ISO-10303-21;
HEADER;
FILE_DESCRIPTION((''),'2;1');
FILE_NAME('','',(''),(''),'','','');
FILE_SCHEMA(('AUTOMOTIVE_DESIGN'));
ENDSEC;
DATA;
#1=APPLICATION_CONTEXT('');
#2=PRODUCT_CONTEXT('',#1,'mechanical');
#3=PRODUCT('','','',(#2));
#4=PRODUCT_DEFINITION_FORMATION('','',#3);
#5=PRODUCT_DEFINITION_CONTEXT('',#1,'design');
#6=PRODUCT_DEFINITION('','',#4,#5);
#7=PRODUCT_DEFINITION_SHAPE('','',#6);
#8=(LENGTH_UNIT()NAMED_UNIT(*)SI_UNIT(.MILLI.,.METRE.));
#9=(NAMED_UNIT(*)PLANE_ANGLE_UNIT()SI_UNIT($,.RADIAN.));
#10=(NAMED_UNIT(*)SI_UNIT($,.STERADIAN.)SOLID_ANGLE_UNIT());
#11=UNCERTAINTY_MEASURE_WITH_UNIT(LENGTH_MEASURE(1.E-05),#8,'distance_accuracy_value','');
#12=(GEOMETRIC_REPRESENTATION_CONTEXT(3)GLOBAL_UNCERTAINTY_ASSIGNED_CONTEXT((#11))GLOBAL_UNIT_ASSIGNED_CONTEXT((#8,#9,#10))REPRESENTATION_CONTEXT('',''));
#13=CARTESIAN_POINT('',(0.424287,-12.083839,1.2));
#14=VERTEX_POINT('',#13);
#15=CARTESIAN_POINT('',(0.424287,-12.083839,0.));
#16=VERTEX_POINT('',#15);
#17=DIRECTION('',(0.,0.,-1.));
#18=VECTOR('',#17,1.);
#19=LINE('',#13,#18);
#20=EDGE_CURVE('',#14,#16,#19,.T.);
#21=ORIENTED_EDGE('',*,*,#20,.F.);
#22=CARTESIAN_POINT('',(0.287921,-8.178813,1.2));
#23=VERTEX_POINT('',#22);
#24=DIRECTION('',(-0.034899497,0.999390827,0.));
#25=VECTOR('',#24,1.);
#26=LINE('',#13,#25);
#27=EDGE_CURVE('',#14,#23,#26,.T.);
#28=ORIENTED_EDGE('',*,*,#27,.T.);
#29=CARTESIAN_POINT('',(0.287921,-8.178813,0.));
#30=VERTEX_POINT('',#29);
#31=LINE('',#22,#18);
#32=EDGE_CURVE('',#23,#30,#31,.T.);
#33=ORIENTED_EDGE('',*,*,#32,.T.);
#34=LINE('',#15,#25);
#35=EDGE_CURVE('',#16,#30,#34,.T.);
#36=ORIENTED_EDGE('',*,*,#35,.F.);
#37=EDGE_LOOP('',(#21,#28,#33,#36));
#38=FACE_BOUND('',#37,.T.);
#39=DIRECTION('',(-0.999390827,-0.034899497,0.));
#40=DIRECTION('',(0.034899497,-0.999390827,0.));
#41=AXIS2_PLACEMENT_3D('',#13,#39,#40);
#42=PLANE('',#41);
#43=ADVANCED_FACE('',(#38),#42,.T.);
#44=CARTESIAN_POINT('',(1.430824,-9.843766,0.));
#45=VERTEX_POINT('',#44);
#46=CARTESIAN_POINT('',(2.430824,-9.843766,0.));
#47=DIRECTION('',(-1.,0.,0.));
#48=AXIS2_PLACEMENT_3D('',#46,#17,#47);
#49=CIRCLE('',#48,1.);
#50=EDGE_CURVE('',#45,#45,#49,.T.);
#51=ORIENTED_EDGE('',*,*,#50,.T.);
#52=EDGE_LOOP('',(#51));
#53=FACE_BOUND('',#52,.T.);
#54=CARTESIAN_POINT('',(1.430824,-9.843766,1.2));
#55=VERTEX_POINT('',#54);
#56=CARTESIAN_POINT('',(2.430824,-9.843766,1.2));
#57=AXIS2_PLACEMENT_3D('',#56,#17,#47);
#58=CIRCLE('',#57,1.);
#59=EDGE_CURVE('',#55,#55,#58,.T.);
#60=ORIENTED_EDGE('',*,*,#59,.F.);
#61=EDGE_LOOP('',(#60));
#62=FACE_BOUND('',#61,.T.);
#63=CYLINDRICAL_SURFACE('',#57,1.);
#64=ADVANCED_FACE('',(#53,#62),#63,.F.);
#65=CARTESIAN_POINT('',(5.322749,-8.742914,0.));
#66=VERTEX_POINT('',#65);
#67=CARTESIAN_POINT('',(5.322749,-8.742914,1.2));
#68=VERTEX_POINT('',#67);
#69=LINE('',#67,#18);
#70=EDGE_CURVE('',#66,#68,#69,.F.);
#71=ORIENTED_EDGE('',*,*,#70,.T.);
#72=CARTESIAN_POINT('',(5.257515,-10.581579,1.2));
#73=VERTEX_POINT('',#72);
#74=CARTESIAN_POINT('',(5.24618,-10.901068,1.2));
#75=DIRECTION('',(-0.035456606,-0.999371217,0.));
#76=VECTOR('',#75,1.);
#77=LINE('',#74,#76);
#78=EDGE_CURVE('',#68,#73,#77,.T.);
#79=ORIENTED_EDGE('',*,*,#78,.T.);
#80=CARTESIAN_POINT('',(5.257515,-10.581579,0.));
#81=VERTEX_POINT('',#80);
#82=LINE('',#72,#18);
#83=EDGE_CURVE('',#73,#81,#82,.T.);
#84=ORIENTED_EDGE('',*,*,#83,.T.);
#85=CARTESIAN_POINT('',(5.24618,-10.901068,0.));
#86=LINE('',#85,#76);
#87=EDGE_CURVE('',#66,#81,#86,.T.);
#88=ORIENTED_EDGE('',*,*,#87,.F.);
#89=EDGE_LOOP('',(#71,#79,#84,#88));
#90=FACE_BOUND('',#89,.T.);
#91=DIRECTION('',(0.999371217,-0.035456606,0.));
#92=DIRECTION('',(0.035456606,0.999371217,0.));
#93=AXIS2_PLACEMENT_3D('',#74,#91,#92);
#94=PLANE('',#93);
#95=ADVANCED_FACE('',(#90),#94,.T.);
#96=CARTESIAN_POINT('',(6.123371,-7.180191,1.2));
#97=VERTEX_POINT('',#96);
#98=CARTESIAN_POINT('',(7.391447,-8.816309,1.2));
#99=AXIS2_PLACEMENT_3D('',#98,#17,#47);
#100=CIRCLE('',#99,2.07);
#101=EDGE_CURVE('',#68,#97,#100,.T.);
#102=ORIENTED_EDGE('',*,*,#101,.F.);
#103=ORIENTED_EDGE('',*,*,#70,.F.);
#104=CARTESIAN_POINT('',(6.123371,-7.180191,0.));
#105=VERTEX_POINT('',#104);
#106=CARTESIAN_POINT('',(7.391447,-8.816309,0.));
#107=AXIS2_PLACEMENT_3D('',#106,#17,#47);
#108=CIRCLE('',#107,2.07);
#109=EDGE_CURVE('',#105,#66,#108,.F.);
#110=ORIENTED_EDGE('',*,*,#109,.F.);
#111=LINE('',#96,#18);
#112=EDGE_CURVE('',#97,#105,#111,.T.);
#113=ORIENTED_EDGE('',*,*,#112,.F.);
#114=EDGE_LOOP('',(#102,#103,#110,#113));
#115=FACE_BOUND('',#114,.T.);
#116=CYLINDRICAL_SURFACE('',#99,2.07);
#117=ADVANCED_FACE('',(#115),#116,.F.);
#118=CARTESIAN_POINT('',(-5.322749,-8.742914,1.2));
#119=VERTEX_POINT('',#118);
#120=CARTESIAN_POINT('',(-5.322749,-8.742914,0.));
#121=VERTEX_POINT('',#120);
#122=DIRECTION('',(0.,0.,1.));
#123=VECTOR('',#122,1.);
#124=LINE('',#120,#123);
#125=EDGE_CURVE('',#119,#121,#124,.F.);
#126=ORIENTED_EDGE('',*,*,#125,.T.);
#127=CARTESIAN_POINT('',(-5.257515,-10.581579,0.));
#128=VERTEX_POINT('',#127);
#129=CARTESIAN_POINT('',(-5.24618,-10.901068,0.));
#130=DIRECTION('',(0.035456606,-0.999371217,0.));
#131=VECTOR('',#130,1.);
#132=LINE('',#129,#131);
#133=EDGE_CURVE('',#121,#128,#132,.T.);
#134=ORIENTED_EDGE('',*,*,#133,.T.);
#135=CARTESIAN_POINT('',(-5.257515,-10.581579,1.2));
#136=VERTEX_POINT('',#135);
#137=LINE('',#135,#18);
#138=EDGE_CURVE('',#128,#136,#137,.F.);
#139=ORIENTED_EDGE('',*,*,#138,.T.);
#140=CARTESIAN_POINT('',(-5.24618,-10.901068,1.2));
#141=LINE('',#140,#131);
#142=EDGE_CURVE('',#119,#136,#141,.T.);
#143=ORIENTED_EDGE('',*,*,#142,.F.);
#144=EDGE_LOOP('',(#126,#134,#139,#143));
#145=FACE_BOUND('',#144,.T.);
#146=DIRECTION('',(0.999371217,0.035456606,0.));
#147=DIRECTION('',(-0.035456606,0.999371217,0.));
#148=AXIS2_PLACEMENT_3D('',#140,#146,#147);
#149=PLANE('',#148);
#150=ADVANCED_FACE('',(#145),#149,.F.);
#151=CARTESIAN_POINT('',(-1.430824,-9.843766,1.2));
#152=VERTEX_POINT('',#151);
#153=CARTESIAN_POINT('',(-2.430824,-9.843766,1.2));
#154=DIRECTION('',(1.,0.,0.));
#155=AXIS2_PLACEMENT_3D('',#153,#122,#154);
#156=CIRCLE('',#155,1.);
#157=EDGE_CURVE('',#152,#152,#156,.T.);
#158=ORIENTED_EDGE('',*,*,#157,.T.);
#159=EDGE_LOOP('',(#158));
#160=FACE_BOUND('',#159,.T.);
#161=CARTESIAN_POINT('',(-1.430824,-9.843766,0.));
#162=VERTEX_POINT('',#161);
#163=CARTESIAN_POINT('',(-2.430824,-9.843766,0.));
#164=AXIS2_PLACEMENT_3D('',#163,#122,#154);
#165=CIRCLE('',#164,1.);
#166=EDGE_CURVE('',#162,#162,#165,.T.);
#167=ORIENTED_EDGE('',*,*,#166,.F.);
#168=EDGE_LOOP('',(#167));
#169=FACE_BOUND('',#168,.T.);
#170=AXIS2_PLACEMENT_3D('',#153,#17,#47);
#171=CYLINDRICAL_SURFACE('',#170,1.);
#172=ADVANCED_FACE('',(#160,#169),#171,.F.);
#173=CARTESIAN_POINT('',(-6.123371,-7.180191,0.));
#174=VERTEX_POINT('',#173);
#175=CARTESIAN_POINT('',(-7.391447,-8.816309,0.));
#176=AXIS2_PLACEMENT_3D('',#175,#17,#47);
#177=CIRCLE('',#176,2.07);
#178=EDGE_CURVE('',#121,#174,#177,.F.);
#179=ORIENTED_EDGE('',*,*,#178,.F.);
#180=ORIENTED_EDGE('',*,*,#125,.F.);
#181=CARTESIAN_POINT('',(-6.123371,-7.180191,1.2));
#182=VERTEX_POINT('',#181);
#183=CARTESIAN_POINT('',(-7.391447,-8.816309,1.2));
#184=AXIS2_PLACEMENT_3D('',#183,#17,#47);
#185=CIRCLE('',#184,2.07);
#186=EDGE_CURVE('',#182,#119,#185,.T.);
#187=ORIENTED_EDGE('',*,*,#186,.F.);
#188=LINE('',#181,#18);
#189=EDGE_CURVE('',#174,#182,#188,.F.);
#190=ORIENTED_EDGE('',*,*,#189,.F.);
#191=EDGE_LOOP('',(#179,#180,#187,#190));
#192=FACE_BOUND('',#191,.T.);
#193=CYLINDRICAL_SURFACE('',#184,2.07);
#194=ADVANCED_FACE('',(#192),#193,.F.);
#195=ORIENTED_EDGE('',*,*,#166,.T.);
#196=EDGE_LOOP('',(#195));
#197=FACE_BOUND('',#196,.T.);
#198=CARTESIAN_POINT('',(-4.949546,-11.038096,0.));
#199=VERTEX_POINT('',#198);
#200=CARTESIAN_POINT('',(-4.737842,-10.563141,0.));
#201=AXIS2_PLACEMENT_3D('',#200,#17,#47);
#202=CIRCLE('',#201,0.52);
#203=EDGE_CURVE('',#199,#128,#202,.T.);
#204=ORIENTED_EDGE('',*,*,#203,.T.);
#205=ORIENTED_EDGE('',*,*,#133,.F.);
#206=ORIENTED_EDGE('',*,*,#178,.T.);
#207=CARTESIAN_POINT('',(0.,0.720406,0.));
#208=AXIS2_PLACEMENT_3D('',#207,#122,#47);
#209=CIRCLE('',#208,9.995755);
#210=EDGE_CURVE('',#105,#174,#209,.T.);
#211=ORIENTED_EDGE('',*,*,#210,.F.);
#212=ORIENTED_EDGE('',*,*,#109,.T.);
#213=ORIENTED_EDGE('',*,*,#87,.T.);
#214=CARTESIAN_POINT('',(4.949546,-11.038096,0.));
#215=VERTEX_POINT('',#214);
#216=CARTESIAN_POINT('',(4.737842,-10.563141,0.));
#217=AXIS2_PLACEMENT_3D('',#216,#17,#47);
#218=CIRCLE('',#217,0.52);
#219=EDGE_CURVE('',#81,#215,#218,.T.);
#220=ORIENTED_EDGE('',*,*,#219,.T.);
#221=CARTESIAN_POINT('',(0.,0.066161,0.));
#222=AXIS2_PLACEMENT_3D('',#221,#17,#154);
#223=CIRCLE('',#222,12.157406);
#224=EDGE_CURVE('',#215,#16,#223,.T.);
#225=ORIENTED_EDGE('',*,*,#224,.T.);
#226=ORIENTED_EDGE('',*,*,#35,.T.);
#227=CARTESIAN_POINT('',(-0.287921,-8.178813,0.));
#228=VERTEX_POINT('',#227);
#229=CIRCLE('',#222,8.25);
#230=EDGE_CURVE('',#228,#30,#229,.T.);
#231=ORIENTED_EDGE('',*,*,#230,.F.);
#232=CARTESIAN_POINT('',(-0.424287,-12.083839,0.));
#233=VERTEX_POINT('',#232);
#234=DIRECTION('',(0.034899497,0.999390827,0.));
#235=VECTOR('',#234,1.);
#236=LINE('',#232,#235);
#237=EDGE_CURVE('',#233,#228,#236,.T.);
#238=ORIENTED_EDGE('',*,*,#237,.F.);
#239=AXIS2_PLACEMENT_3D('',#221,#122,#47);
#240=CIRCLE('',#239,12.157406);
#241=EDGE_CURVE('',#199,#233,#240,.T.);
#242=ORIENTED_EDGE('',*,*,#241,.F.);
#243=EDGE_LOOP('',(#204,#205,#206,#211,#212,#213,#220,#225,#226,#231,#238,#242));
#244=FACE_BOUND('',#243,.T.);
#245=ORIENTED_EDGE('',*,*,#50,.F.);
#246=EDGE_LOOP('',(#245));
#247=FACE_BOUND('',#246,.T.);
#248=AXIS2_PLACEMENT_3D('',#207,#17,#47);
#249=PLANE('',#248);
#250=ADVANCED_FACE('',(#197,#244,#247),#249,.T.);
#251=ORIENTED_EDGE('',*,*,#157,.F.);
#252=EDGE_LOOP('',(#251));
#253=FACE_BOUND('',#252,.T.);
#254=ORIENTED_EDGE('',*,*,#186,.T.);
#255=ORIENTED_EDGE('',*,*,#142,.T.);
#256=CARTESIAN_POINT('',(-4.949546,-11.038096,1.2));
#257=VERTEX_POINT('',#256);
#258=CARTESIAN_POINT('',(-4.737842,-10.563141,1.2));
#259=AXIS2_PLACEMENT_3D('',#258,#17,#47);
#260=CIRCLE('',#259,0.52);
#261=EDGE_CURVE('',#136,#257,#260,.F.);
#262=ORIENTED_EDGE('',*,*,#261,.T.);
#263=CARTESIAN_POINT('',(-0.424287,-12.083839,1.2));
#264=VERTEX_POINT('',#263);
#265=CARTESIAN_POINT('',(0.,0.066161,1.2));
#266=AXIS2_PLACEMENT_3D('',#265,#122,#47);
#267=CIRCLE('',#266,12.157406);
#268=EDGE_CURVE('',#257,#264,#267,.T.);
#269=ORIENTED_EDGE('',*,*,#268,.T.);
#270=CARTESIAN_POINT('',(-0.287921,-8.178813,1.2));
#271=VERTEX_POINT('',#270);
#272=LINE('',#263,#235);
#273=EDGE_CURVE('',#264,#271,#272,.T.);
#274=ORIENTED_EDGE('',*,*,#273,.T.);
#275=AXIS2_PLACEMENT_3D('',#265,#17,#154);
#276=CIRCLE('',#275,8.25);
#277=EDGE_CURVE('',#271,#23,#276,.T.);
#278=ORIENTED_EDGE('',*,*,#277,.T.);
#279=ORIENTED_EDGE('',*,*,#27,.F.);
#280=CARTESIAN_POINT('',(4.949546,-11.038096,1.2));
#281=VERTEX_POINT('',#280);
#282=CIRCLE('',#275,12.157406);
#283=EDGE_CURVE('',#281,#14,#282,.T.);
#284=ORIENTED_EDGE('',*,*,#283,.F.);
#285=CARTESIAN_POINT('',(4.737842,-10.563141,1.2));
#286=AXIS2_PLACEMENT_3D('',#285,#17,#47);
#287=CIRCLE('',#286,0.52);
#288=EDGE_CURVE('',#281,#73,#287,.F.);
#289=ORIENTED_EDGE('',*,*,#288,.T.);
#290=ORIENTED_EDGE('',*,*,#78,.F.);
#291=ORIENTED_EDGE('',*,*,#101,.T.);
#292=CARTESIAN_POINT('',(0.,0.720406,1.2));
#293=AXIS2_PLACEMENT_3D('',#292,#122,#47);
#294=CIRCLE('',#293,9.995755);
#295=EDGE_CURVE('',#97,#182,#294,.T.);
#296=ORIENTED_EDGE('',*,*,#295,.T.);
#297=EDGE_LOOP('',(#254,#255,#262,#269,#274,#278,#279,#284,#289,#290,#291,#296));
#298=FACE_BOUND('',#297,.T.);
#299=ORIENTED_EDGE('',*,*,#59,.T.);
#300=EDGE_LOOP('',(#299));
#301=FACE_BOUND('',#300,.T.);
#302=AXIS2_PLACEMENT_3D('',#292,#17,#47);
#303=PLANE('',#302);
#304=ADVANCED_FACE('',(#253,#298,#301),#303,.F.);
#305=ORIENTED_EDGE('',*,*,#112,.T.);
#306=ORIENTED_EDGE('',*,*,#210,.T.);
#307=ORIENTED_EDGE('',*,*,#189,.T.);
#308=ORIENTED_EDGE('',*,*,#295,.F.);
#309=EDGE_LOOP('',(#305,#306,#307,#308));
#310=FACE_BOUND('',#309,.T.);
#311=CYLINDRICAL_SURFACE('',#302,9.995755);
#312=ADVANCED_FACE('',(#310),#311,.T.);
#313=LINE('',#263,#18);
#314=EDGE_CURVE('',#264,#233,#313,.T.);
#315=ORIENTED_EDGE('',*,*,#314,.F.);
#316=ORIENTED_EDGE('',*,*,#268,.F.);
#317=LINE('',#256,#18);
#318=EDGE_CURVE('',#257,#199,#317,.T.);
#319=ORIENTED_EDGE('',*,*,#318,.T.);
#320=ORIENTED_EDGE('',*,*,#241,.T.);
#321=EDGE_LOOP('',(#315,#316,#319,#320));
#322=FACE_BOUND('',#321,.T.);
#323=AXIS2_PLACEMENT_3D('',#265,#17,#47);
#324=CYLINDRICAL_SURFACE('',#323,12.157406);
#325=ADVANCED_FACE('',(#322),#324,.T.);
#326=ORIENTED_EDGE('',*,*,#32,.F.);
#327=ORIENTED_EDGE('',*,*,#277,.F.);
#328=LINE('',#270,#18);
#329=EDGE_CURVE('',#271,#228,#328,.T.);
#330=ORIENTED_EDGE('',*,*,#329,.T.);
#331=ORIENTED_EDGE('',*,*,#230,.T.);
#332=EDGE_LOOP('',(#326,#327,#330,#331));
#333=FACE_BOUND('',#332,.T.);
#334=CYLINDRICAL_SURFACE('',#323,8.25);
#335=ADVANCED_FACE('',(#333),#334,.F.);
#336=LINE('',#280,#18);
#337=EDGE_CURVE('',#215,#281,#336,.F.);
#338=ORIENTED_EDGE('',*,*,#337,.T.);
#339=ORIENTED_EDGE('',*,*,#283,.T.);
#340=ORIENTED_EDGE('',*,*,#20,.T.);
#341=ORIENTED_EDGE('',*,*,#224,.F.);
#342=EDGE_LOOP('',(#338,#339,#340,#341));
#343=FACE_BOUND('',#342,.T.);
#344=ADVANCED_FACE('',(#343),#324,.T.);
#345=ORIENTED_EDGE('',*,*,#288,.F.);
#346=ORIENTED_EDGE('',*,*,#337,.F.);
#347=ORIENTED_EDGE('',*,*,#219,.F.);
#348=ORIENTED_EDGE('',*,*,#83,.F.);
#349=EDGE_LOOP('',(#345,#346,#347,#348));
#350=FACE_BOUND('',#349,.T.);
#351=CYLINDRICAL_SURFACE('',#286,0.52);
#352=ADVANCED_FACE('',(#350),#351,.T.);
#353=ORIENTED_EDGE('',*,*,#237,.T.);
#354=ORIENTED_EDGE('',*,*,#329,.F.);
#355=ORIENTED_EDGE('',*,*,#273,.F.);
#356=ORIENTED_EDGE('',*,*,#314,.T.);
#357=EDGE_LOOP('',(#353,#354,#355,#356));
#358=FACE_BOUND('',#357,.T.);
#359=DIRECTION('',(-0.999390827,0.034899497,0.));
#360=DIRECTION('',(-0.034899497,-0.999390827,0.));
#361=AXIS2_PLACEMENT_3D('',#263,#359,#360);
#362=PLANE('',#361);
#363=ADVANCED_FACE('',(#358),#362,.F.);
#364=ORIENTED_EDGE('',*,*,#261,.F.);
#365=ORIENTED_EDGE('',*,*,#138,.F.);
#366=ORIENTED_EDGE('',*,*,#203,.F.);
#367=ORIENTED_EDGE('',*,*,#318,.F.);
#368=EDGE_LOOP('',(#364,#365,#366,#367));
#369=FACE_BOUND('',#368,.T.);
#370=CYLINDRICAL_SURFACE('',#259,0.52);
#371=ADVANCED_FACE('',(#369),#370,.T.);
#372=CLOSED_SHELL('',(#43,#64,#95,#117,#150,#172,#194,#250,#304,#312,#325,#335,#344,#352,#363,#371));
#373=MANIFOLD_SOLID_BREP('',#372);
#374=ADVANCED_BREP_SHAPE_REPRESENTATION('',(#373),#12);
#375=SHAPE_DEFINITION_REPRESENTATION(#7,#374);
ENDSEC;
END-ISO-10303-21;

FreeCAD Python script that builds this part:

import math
import FreeCAD as App
import Part
import Sketcher
from FreeCAD import Vector
Q = App.Units.Quantity


def edges_at(feature, points):
    """Names of the edges that pass closest to the given points."""
    edges = feature.Shape.Edges
    near = lambda p: min(range(len(edges)), key=lambda i: edges[i].distToShape(Part.Vertex(*p))[0])
    return sorted({f"Edge{near(p) + 1}" for p in points})

doc = App.newDocument("Part")
body = doc.addObject("PartDesign::Body", "Body")

sketch1 = body.newObject("Sketcher::SketchObject", "Sketch")
sketch1.AttachmentSupport = (doc.getObject("XY_Plane"), [""])
sketch1.MapMode = "FlatFace"
sketch1.addGeometry(Part.LineSegment(Vector(0, 8.3, 0), Vector(0, 10.7, 0)), False)
sketch1.addGeometry(Part.ArcOfCircle(Part.Circle(Vector(0, 0.7, 0), Vector(0, 0, 1), 10), math.radians(90), math.radians(238)), False)
sketch1.addGeometry(Part.LineSegment(Vector(-5.4, -7.7, 0), Vector(-5.2, -10.9, 0)), False)
sketch1.addGeometry(Part.ArcOfCircle(Part.Circle(Vector(0, 0.1, 0), Vector(0, 0, 1), 12.2), math.radians(-116), math.radians(-92)), False)
sketch1.addGeometry(Part.LineSegment(Vector(-0.4, -12.1, 0), Vector(-0.3, -8.2, 0)), False)
sketch1.addGeometry(Part.ArcOfCircle(Part.Circle(Vector(0, 0.1, 0), Vector(0, 0, 1), 8.2), math.radians(90), math.radians(268)), False)
sketch1.addGeometry(Part.Circle(Vector(-2.4, -9.8, 0), Vector(0, 0, 1), 1), False)
sketch1.addConstraint(Sketcher.Constraint("Coincident", 0, 2, 1, 1))
sketch1.addConstraint(Sketcher.Constraint("Coincident", 1, 2, 2, 1))
sketch1.addConstraint(Sketcher.Constraint("Coincident", 2, 2, 3, 1))
sketch1.addConstraint(Sketcher.Constraint("Coincident", 3, 2, 4, 1))
sketch1.addConstraint(Sketcher.Constraint("Coincident", 4, 2, 5, 2))
sketch1.addConstraint(Sketcher.Constraint("Coincident", 5, 1, 0, 1))
sketch1.addConstraint(Sketcher.Constraint("Vertical", 0))
sketch1.addConstraint(Sketcher.Constraint("Coincident", 5, 3, 3, 3))
sketch1.addConstraint(Sketcher.Constraint("PointOnObject", 1, 3, -2))
sketch1.addConstraint(Sketcher.Constraint("PointOnObject", 3, 3, -2))
sketch1.addConstraint(Sketcher.Constraint("PointOnObject", 0, 2, -2))
sketch1.addConstraint(Sketcher.Constraint("Diameter", 6, 2.0))
sketch1.addConstraint(Sketcher.Constraint("Angle", 4, Q("88 deg")))
sketch1.addConstraint(Sketcher.Constraint("Radius", 5, 8.25))
sketch1.addConstraint(Sketcher.Constraint("DistanceY", 0, 1, 0, 2, 2.4))
sketch1.addConstraint(Sketcher.Constraint("DistanceY", 3, 2, 5, 3, 12.15))
sketch1.addConstraint(Sketcher.Constraint("Radius", 1, 9.995755))
sketch1.addConstraint(Sketcher.Constraint("Radius", 3, 12.157406))
sketch1.addConstraint(Sketcher.Constraint("DistanceY", 1, 2, 1, 3, 8.437699))
sketch1.addConstraint(Sketcher.Constraint("Distance", 2, 3.185779))
sketch1.addConstraint(Sketcher.Constraint("DistanceY", -1, 1, 3, 3, 0.066161))
sketch1.addConstraint(Sketcher.Constraint("DistanceX", 6, 3, -1, 1, 2.430824))
sketch1.addConstraint(Sketcher.Constraint("DistanceY", 6, 3, -1, 1, 9.843766))
pad1 = body.newObject("PartDesign::Pad", "Pad")
pad1.Profile = sketch1
pad1.Length = 1.2
doc.recompute()

fillet = body.newObject("PartDesign::Fillet", "Fillet")
fillet.Base = (pad1, edges_at(pad1, [(-5.359, -7.717, 0.6)]))
fillet.Radius = 2.07
doc.recompute()

fillet2 = body.newObject("PartDesign::Fillet", "Fillet001")
fillet2.Base = (fillet, edges_at(fillet, [(-5.246, -10.901, 0.6)]))
fillet2.Radius = 0.52
doc.recompute()

mirrored = body.newObject("PartDesign::Mirrored", "Mirrored")
mirrored.Originals = [pad1]
mirrored.MirrorPlane = (doc.getObject("YZ_Plane"), [""])
body.Tip = mirrored
doc.recompute()

fillet3 = body.newObject("PartDesign::Fillet", "Fillet002")
fillet3.Base = (mirrored, edges_at(mirrored, [(5.359, -7.717, 0.6)]))
fillet3.Radius = 2.07
doc.recompute()

fillet4 = body.newObject("PartDesign::Fillet", "Fillet003")
fillet4.Base = (fillet3, edges_at(fillet3, [(5.246, -10.901, 0.6)]))
fillet4.Radius = 0.52

doc.recompute()
